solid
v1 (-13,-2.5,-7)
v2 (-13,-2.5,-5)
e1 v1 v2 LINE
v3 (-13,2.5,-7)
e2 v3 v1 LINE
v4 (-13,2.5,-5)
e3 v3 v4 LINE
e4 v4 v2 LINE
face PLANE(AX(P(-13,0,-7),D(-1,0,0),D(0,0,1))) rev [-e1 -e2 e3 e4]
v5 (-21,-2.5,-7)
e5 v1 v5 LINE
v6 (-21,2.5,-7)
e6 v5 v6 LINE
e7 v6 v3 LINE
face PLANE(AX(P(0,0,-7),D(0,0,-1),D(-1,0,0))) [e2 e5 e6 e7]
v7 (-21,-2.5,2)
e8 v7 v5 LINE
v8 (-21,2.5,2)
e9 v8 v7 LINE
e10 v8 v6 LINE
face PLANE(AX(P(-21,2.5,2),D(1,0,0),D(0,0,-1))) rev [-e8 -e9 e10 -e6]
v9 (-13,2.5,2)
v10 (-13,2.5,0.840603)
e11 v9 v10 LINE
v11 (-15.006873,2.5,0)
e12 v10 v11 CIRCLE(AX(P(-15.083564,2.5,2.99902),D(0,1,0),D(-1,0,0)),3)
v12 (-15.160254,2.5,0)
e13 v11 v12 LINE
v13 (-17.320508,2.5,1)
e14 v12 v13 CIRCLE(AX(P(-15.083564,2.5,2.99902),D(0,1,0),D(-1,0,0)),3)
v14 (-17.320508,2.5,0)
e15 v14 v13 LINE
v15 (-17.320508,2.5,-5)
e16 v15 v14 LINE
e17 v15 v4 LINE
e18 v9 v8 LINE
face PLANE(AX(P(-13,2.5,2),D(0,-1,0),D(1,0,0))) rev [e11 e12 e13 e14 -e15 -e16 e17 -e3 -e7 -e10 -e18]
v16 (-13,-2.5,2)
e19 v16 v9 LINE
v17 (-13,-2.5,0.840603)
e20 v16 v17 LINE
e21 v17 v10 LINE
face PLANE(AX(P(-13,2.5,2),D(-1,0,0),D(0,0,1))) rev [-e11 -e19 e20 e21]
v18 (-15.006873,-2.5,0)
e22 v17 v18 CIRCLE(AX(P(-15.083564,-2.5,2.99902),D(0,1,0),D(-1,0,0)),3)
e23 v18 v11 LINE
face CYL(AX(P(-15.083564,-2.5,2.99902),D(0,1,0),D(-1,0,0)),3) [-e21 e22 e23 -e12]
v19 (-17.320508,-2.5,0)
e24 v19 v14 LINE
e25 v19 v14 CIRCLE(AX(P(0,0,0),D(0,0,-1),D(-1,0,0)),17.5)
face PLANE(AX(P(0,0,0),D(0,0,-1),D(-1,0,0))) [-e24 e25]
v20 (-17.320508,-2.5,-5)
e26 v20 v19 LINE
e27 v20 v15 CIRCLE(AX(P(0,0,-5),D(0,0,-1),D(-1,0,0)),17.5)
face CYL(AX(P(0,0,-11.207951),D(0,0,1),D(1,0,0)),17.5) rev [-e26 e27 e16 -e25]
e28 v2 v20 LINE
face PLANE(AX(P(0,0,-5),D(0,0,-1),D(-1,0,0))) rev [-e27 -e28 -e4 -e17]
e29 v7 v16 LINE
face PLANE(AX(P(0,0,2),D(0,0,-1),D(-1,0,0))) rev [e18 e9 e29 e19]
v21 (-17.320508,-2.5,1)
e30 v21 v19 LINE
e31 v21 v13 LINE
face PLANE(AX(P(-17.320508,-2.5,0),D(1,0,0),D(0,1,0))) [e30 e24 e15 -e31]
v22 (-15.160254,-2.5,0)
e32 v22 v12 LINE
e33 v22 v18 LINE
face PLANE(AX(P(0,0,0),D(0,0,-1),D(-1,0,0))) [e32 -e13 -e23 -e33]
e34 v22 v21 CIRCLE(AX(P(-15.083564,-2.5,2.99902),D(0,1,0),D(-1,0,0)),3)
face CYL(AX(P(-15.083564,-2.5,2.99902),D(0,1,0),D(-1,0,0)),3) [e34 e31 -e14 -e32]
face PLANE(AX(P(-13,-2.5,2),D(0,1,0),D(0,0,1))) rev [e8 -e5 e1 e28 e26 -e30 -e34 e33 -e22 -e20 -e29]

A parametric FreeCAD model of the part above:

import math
import FreeCAD as App
import Part
import Sketcher
Q = App.Units.Quantity

doc = App.newDocument("Part")
params = doc.addObject("Spreadsheet::Sheet", "Params")
for row, (alias, value) in enumerate([
    ("sketch1_width", "8 mm"),
    ("sketch1_height", "5 mm"),
    ("pad1_length", "2 mm"),
    ("sketch2_radius", "17.5 mm"),
    ("sketch2_height", "5 mm"),
    ("pad2_length", "5 mm"),
    ("sketch3_width", "8 mm"),
    ("sketch3_height", "5 mm"),
    ("pad3_length", "2 mm"),
    ("sketch4_radius", "3 mm"),
    ("sketch4_height", "1 mm"),
], start=1):
    params.set(f"A{row}", alias)
    params.set(f"B{row}", "=" + value)
    params.setAlias(f"B{row}", alias)

body = doc.addObject("PartDesign::Body", "Body")

sketch1 = body.newObject("Sketcher::SketchObject", "Sketch")
sketch1.AttachmentSupport = (doc.getObject("XY_Plane"), [""])
sketch1.MapMode = "FlatFace"
sketch1.addGeometry(Part.LineSegment(App.Vector(-21, 2, 0), App.Vector(-21, -2, 0)), False)
sketch1.addGeometry(Part.LineSegment(App.Vector(-21, -2, 0), App.Vector(-13, -2, 0)), False)
sketch1.addGeometry(Part.LineSegment(App.Vector(-13, -2, 0), App.Vector(-13, 2, 0)), False)
sketch1.addGeometry(Part.LineSegment(App.Vector(-13, 2, 0), App.Vector(-21, 2, 0)), False)
sketch1.addConstraint(Sketcher.Constraint("Coincident", 0, 2, 1, 1))
sketch1.addConstraint(Sketcher.Constraint("Coincident", 1, 2, 2, 1))
sketch1.addConstraint(Sketcher.Constraint("Coincident", 2, 2, 3, 1))
sketch1.addConstraint(Sketcher.Constraint("Coincident", 3, 2, 0, 1))
sketch1.addConstraint(Sketcher.Constraint("Vertical", 0))
sketch1.addConstraint(Sketcher.Constraint("Horizontal", 1))
sketch1.addConstraint(Sketcher.Constraint("Vertical", 2))
sketch1.addConstraint(Sketcher.Constraint("Horizontal", 3))
sketch1.addConstraint(Sketcher.Constraint("DistanceX", 1, 1, 1, 2, Q("8 mm")))
sketch1.addConstraint(Sketcher.Constraint("DistanceY", 0, 2, 0, 1, Q("5 mm")))
sketch1.addConstraint(Sketcher.Constraint("DistanceX", 0, 2, -1, 1, Q("21 mm")))
sketch1.addConstraint(Sketcher.Constraint("DistanceY", 0, 2, -1, 1, Q("2.5 mm")))
sketch1.setExpression("Constraints[8]", "Params.sketch1_width")
sketch1.setExpression("Constraints[9]", "Params.sketch1_height")
pad1 = body.newObject("PartDesign::Pad", "Pad")
pad1.Profile = sketch1
pad1.setExpression("Length", "Params.pad1_length")

sketch2 = body.newObject("Sketcher::SketchObject", "Sketch001")
sketch2.AttachmentSupport = (doc.getObject("XY_Plane"), [""])
sketch2.MapMode = "FlatFace"
sketch2.addGeometry(Part.LineSegment(App.Vector(-21, 2.5, 0), App.Vector(-17.3, 2.5, 0)), False)
sketch2.addGeometry(Part.ArcOfCircle(Part.Circle(App.Vector(0, 0, 0), App.Vector(0, 0, 1), 17.5), math.radians(171.79), math.radians(188.21)), False)
sketch2.addGeometry(Part.LineSegment(App.Vector(-17.3, -2.5, 0), App.Vector(-21, -2.5, 0)), False)
sketch2.addGeometry(Part.LineSegment(App.Vector(-21, -2.5, 0), App.Vector(-21, 2.5, 0)), False)
sketch2.addConstraint(Sketcher.Constraint("Coincident", 0, 2, 1, 1))
sketch2.addConstraint(Sketcher.Constraint("Coincident", 1, 2, 2, 1))
sketch2.addConstraint(Sketcher.Constraint("Coincident", 2, 2, 3, 1))
sketch2.addConstraint(Sketcher.Constraint("Coincident", 3, 2, 0, 1))
sketch2.addConstraint(Sketcher.Constraint("Horizontal", 0))
sketch2.addConstraint(Sketcher.Constraint("Horizontal", 2))
sketch2.addConstraint(Sketcher.Constraint("Vertical", 3))
sketch2.addConstraint(Sketcher.Constraint("Coincident", 1, 3, -1, 1))
sketch2.addConstraint(Sketcher.Constraint("Vertical", 0, 2, 1, 2))
sketch2.addConstraint(Sketcher.Constraint("Radius", 1, Q("17.5 mm")))
sketch2.addConstraint(Sketcher.Constraint("DistanceY", 3, 1, 3, 2, Q("5 mm")))
sketch2.addConstraint(Sketcher.Constraint("DistanceX", 2, 2, -1, 1, Q("21 mm")))
sketch2.setExpression("Constraints[9]", "Params.sketch2_radius")
sketch2.setExpression("Constraints[10]", "Params.sketch2_height")
pad2 = body.newObject("PartDesign::Pad", "Pad001")
pad2.Profile = sketch2
pad2.setExpression("Length", "Params.pad2_length")
pad2.Reversed = True

sketch3 = body.newObject("Sketcher::SketchObject", "Sketch002")
sketch3.AttachmentSupport = (doc.getObject("XY_Plane"), [""])
sketch3.MapMode = "FlatFace"
sketch3.AttachmentOffset = App.Placement(App.Vector(0, 0, -5), App.Rotation())
sketch3.addGeometry(Part.LineSegment(App.Vector(-21, 2, 0), App.Vector(-13, 2, 0)), False)
sketch3.addGeometry(Part.LineSegment(App.Vector(-13, 2, 0), App.Vector(-13, -2, 0)), False)
sketch3.addGeometry(Part.LineSegment(App.Vector(-13, -2, 0), App.Vector(-21, -2, 0)), False)
sketch3.addGeometry(Part.LineSegment(App.Vector(-21, -2, 0), App.Vector(-21, 2, 0)), False)
sketch3.addConstraint(Sketcher.Constraint("Coincident", 0, 2, 1, 1))
sketch3.addConstraint(Sketcher.Constraint("Coincident", 1, 2, 2, 1))
sketch3.addConstraint(Sketcher.Constraint("Coincident", 2, 2, 3, 1))
sketch3.addConstraint(Sketcher.Constraint("Coincident", 3, 2, 0, 1))
sketch3.addConstraint(Sketcher.Constraint("Horizontal", 0))
sketch3.addConstraint(Sketcher.Constraint("Vertical", 1))
sketch3.addConstraint(Sketcher.Constraint("Horizontal", 2))
sketch3.addConstraint(Sketcher.Constraint("Vertical", 3))
sketch3.addConstraint(Sketcher.Constraint("DistanceX", 0, 1, 0, 2, Q("8 mm")))
sketch3.addConstraint(Sketcher.Constraint("DistanceY", 1, 2, 1, 1, Q("5 mm")))
sketch3.addConstraint(Sketcher.Constraint("DistanceX", 0, 2, -1, 1, Q("13 mm")))
sketch3.addConstraint(Sketcher.Constraint("DistanceY", -1, 1, 0, 2, Q("2.5 mm")))
sketch3.setExpression("Constraints[8]", "Params.sketch3_width")
sketch3.setExpression("Constraints[9]", "Params.sketch3_height")
pad3 = body.newObject("PartDesign::Pad", "Pad002")
pad3.Profile = sketch3
pad3.setExpression("Length", "Params.pad3_length")
pad3.Reversed = True

sketch4 = body.newObject("Sketcher::SketchObject", "Sketch003")
sketch4.AttachmentSupport = (doc.getObject("XZ_Plane"), [""])
sketch4.MapMode = "FlatFace"
sketch4.AttachmentOffset = App.Placement(App.Vector(0, 0, -2.5), App.Rotation())
sketch4.addGeometry(Part.LineSegment(App.Vector(-13, 0, 0), App.Vector(-15, 0, 0)), False)
sketch4.addGeometry(Part.ArcOfCircle(Part.Circle(App.Vector(-15.1, 3, 0), App.Vector(0, 0, 1), 3), math.radians(-89), math.radians(-46)), False)
sketch4.addGeometry(Part.LineSegment(App.Vector(-13, 0.8, 0), App.Vector(-13, 0, 0)), False)
sketch4.addGeometry(Part.ArcOfCircle(Part.Circle(App.Vector(-15.1, 3, 0), App.Vector(0, 0, 1), 3), math.radians(-138), math.radians(-91)), False)
sketch4.addGeometry(Part.LineSegment(App.Vector(-15.2, 0, 0), App.Vector(-17.3, 0, 0)), False)
sketch4.addGeometry(Part.LineSegment(App.Vector(-17.3, 0, 0), App.Vector(-17.3, 1, 0)), False)
sketch4.addConstraint(Sketcher.Constraint("Coincident", 0, 2, 1, 1))
sketch4.addConstraint(Sketcher.Constraint("Coincident", 1, 2, 2, 1))
sketch4.addConstraint(Sketcher.Constraint("Coincident", 2, 2, 0, 1))
sketch4.addConstraint(Sketcher.Constraint("Coincident", 3, 2, 4, 1))
sketch4.addConstraint(Sketcher.Constraint("Coincident", 4, 2, 5, 1))
sketch4.addConstraint(Sketcher.Constraint("Coincident", 5, 2, 3, 1))
sketch4.addConstraint(Sketcher.Constraint("Horizontal", 0))
sketch4.addConstraint(Sketcher.Constraint("Vertical", 2))
sketch4.addConstraint(Sketcher.Constraint("Horizontal", 4))
sketch4.addConstraint(Sketcher.Constraint("Vertical", 5))
sketch4.addConstraint(Sketcher.Constraint("Coincident", 3, 3, 1, 3))
sketch4.addConstraint(Sketcher.Constraint("Equal", 1, 3))
sketch4.addConstraint(Sketcher.Constraint("PointOnObject", 0, 2, -1))
sketch4.addConstraint(Sketcher.Constraint("PointOnObject", 3, 2, -1))
sketch4.addConstraint(Sketcher.Constraint("Radius", 1, Q("3 mm")))
sketch4.addConstraint(Sketcher.Constraint("DistanceY", 5, 1, 5, 2, Q("1 mm")))
sketch4.addConstraint(Sketcher.Constraint("DistanceX", 1, 2, -1, 1, Q("13 mm")))
sketch4.addConstraint(Sketcher.Constraint("DistanceX", 0, 2, 0, 1, Q("2.006873 mm")))
sketch4.addConstraint(Sketcher.Constraint("DistanceX", 4, 2, 4, 1, Q("2.160254 mm")))
sketch4.setExpression("Constraints[14]", "Params.sketch4_radius")
sketch4.setExpression("Constraints[15]", "Params.sketch4_height")
pocket1 = body.newObject("PartDesign::Pocket", "Pocket")
pocket1.Profile = sketch4
pocket1.Type = "ThroughAll"
pocket1.Midplane = True

doc.recompute()
